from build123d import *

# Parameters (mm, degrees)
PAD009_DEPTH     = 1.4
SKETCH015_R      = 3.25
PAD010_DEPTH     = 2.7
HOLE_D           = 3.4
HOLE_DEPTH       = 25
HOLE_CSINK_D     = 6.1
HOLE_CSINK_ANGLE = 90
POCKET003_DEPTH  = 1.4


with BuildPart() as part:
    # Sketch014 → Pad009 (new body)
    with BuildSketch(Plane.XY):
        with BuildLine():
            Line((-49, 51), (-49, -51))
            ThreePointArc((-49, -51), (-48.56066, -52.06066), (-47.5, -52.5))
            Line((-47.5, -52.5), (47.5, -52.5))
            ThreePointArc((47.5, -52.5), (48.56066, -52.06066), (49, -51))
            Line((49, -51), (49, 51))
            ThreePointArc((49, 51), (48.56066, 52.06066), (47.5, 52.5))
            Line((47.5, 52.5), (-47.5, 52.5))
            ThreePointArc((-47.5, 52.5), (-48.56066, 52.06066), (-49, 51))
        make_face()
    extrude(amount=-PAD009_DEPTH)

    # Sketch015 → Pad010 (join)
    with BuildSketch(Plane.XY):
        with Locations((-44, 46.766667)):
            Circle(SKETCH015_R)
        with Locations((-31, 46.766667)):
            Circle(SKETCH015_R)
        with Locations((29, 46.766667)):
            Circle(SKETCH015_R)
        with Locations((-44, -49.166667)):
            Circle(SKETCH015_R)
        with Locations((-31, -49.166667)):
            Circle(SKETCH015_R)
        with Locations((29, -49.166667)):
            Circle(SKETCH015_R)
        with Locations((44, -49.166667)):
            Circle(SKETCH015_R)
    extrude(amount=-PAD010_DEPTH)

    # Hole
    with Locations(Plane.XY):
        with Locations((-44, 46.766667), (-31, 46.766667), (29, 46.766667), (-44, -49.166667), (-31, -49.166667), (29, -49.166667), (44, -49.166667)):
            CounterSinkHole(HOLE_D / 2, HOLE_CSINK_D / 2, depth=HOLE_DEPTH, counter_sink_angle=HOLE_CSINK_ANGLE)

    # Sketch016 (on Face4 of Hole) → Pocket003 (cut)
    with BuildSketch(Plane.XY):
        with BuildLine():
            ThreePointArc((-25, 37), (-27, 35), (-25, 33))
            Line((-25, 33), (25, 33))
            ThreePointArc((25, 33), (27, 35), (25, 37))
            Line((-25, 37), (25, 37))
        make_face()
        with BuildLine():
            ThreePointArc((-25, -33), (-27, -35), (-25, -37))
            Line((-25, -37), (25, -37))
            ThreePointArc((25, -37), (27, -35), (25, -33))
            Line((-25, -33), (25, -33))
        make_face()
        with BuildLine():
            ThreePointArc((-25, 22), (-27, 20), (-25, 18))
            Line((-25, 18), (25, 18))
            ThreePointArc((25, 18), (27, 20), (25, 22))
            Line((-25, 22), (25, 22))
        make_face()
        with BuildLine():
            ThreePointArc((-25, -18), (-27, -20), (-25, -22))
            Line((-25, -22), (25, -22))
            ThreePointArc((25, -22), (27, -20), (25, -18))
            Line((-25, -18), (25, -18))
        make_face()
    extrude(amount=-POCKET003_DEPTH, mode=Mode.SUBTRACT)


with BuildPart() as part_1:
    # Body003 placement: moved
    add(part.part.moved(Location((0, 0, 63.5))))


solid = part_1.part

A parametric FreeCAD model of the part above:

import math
import FreeCAD as App
import Part
import Sketcher

doc = App.newDocument("Part")
body = doc.addObject("PartDesign::Body", "Body")

# Sketch on XY plane
sketch1 = body.newObject("Sketcher::SketchObject", "Sketch")
sketch1.AttachmentSupport = (doc.getObject("XY_Plane"), [""])
sketch1.MapMode = "FlatFace"
sketch1.addGeometry(Part.LineSegment(App.Vector(-49, 51, 0), App.Vector(-49, -51, 0)), False)
sketch1.addGeometry(Part.ArcOfCircle(Part.Circle(App.Vector(-47.5, -51, 0), App.Vector(0, 0, 1), 1.5), math.radians(-180), math.radians(-90)), False)
sketch1.addGeometry(Part.LineSegment(App.Vector(-47.5, -52.5, 0), App.Vector(47.5, -52.5, 0)), False)
sketch1.addGeometry(Part.ArcOfCircle(Part.Circle(App.Vector(47.5, -51, 0), App.Vector(0, 0, 1), 1.5), math.radians(-90), math.radians(0)), False)
sketch1.addGeometry(Part.LineSegment(App.Vector(49, -51, 0), App.Vector(49, 51, 0)), False)
sketch1.addGeometry(Part.ArcOfCircle(Part.Circle(App.Vector(47.5, 51, 0), App.Vector(0, 0, 1), 1.5), math.radians(0), math.radians(90)), False)
sketch1.addGeometry(Part.LineSegment(App.Vector(47.5, 52.5, 0), App.Vector(-47.5, 52.5, 0)), False)
sketch1.addGeometry(Part.ArcOfCircle(Part.Circle(App.Vector(-47.5, 51, 0), App.Vector(0, 0, 1), 1.5), math.radians(90), math.radians(180)), False)
sketch1.addConstraint(Sketcher.Constraint("Tangent", 0, 2, 1, 1))
sketch1.addConstraint(Sketcher.Constraint("Tangent", 1, 2, 2, 1))
sketch1.addConstraint(Sketcher.Constraint("Tangent", 2, 2, 3, 1))
sketch1.addConstraint(Sketcher.Constraint("Tangent", 3, 2, 4, 1))
sketch1.addConstraint(Sketcher.Constraint("Tangent", 4, 2, 5, 1))
sketch1.addConstraint(Sketcher.Constraint("Tangent", 5, 2, 6, 1))
sketch1.addConstraint(Sketcher.Constraint("Tangent", 6, 2, 7, 1))
sketch1.addConstraint(Sketcher.Constraint("Tangent", 7, 2, 0, 1))
sketch1.addConstraint(Sketcher.Constraint("Vertical", 0))
sketch1.addConstraint(Sketcher.Constraint("Horizontal", 2))
sketch1.addConstraint(Sketcher.Constraint("Vertical", 4))
sketch1.addConstraint(Sketcher.Constraint("Horizontal", 6))
sketch1.addConstraint(Sketcher.Constraint("Equal", 1, 3))
sketch1.addConstraint(Sketcher.Constraint("Equal", 3, 5))
sketch1.addConstraint(Sketcher.Constraint("Equal", 5, 7))
sketch1.addConstraint(Sketcher.Constraint("Symmetric", 1, 3, 5, 3, -1, 1))
sketch1.addConstraint(Sketcher.Constraint("Radius", 1, 1.500001))
sketch1.addConstraint(Sketcher.Constraint("DistanceX", 2, 1, 2, 2, 95.0))
sketch1.addConstraint(Sketcher.Constraint("DistanceY", 0, 2, 0, 1, 102.0))
pad1 = body.newObject("PartDesign::Pad", "Pad")
pad1.Profile = sketch1
pad1.Length = 1.4
pad1.Reversed = True

# Sketch on XY plane
sketch2 = body.newObject("Sketcher::SketchObject", "Sketch001")
sketch2.AttachmentSupport = (doc.getObject("XY_Plane"), [""])
sketch2.MapMode = "FlatFace"
sketch2.addGeometry(Part.Circle(App.Vector(-44, 46.8, 0), App.Vector(0, 0, 1), 3.2), False)
sketch2.addGeometry(Part.Circle(App.Vector(-31, 46.8, 0), App.Vector(0, 0, 1), 3.2), False)
sketch2.addGeometry(Part.Circle(App.Vector(29, 46.8, 0), App.Vector(0, 0, 1), 3.2), False)
sketch2.addGeometry(Part.Circle(App.Vector(-44, -49.2, 0), App.Vector(0, 0, 1), 3.2), False)
sketch2.addGeometry(Part.Circle(App.Vector(-31, -49.2, 0), App.Vector(0, 0, 1), 3.2), False)
sketch2.addGeometry(Part.Circle(App.Vector(29, -49.2, 0), App.Vector(0, 0, 1), 3.2), False)
sketch2.addGeometry(Part.Circle(App.Vector(44, -49.2, 0), App.Vector(0, 0, 1), 3.2), False)
sketch2.addConstraint(Sketcher.Constraint("Equal", 0, 1))
sketch2.addConstraint(Sketcher.Constraint("Equal", 1, 2))
sketch2.addConstraint(Sketcher.Constraint("Equal", 2, 3))
sketch2.addConstraint(Sketcher.Constraint("Equal", 3, 4))
sketch2.addConstraint(Sketcher.Constraint("Equal", 4, 5))
sketch2.addConstraint(Sketcher.Constraint("Equal", 5, 6))
sketch2.addConstraint(Sketcher.Constraint("Symmetric", 3, 3, 6, 3, -2))
sketch2.addConstraint(Sketcher.Constraint("Horizontal", 0, 3, 1, 3))
sketch2.addConstraint(Sketcher.Constraint("Horizontal", 1, 3, 2, 3))
sketch2.addConstraint(Sketcher.Constraint("Horizontal", 3, 3, 4, 3))
sketch2.addConstraint(Sketcher.Constraint("Horizontal", 4, 3, 5, 3))
sketch2.addConstraint(Sketcher.Constraint("Vertical", 0, 3, 3, 3))
sketch2.addConstraint(Sketcher.Constraint("Vertical", 1, 3, 4, 3))
sketch2.addConstraint(Sketcher.Constraint("Vertical", 2, 3, 5, 3))
sketch2.addConstraint(Sketcher.Constraint("Diameter", 0, 6.5))
sketch2.addConstraint(Sketcher.Constraint("DistanceX", 0, 3, -1, 1, 44.0))
sketch2.addConstraint(Sketcher.Constraint("DistanceX", 1, 3, -1, 1, 31.0))
sketch2.addConstraint(Sketcher.Constraint("DistanceX", -1, 1, 2, 3, 29.0))
sketch2.addConstraint(Sketcher.Constraint("DistanceY", -1, 1, 0, 3, 46.766667))
sketch2.addConstraint(Sketcher.Constraint("DistanceY", 3, 3, -1, 1, 49.166667))
pad2 = body.newObject("PartDesign::Pad", "Pad001")
pad2.Profile = sketch2
pad2.Length = 2.7
pad2.Reversed = True

# Sketch on XY plane
sketch3 = body.newObject("Sketcher::SketchObject", "Sketch002")
sketch3.AttachmentSupport = (doc.getObject("XY_Plane"), [""])
sketch3.MapMode = "FlatFace"
sketch3.addGeometry(Part.Circle(App.Vector(-44, 46.8, 0), App.Vector(0, 0, 1), 1.7), False)
sketch3.addGeometry(Part.Circle(App.Vector(-31, 46.8, 0), App.Vector(0, 0, 1), 1.7), False)
sketch3.addGeometry(Part.Circle(App.Vector(29, 46.8, 0), App.Vector(0, 0, 1), 1.7), False)
sketch3.addGeometry(Part.Circle(App.Vector(-44, -49.2, 0), App.Vector(0, 0, 1), 1.7), False)
sketch3.addGeometry(Part.Circle(App.Vector(-31, -49.2, 0), App.Vector(0, 0, 1), 1.7), False)
sketch3.addGeometry(Part.Circle(App.Vector(29, -49.2, 0), App.Vector(0, 0, 1), 1.7), False)
sketch3.addGeometry(Part.Circle(App.Vector(44, -49.2, 0), App.Vector(0, 0, 1), 1.7), False)
sketch3.addConstraint(Sketcher.Constraint("Equal", 0, 1))
sketch3.addConstraint(Sketcher.Constraint("Equal", 1, 2))
sketch3.addConstraint(Sketcher.Constraint("Equal", 2, 3))
sketch3.addConstraint(Sketcher.Constraint("Equal", 3, 4))
sketch3.addConstraint(Sketcher.Constraint("Equal", 4, 5))
sketch3.addConstraint(Sketcher.Constraint("Equal", 5, 6))
sketch3.addConstraint(Sketcher.Constraint("Symmetric", 3, 3, 6, 3, -2))
sketch3.addConstraint(Sketcher.Constraint("Horizontal", 0, 3, 1, 3))
sketch3.addConstraint(Sketcher.Constraint("Horizontal", 1, 3, 2, 3))
sketch3.addConstraint(Sketcher.Constraint("Horizontal", 3, 3, 4, 3))
sketch3.addConstraint(Sketcher.Constraint("Horizontal", 4, 3, 5, 3))
sketch3.addConstraint(Sketcher.Constraint("Vertical", 0, 3, 3, 3))
sketch3.addConstraint(Sketcher.Constraint("Vertical", 1, 3, 4, 3))
sketch3.addConstraint(Sketcher.Constraint("Vertical", 2, 3, 5, 3))
sketch3.addConstraint(Sketcher.Constraint("Diameter", 0, 3.4))
sketch3.addConstraint(Sketcher.Constraint("DistanceX", 0, 3, -1, 1, 44.0))
sketch3.addConstraint(Sketcher.Constraint("DistanceX", 1, 3, -1, 1, 31.0))
sketch3.addConstraint(Sketcher.Constraint("DistanceX", -1, 1, 2, 3, 29.0))
sketch3.addConstraint(Sketcher.Constraint("DistanceY", -1, 1, 0, 3, 46.766667))
sketch3.addConstraint(Sketcher.Constraint("DistanceY", 3, 3, -1, 1, 49.166667))
doc.recompute()
hole = body.newObject("PartDesign::Hole", "Hole")
hole.Profile = sketch3
hole.ThreadType = "None"
hole.Diameter = 3.4
hole.DepthType = "Dimension"
hole.Depth = 25
hole.DrillPoint = "Flat"
hole.HoleCutType = "Countersink"
hole.HoleCutDiameter = 6.1
hole.HoleCutCountersinkAngle = 90

# Sketch on XY plane
sketch4 = body.newObject("Sketcher::SketchObject", "Sketch003")
sketch4.AttachmentSupport = (doc.getObject("XY_Plane"), [""])
sketch4.MapMode = "FlatFace"
sketch4.addGeometry(Part.ArcOfCircle(Part.Circle(App.Vector(-25, 35, 0), App.Vector(0, 0, 1), 2), math.radians(90), math.radians(270)), False)
sketch4.addGeometry(Part.LineSegment(App.Vector(-25, 33, 0), App.Vector(25, 33, 0)), False)
sketch4.addGeometry(Part.ArcOfCircle(Part.Circle(App.Vector(25, 35, 0), App.Vector(0, 0, 1), 2), math.radians(-90), math.radians(90)), False)
sketch4.addGeometry(Part.LineSegment(App.Vector(25, 37, 0), App.Vector(-25, 37, 0)), False)
sketch4.addGeometry(Part.ArcOfCircle(Part.Circle(App.Vector(-25, -35, 0), App.Vector(0, 0, 1), 2), math.radians(90), math.radians(270)), False)
sketch4.addGeometry(Part.LineSegment(App.Vector(-25, -37, 0), App.Vector(25, -37, 0)), False)
sketch4.addGeometry(Part.ArcOfCircle(Part.Circle(App.Vector(25, -35, 0), App.Vector(0, 0, 1), 2), math.radians(-90), math.radians(90)), False)
sketch4.addGeometry(Part.LineSegment(App.Vector(25, -33, 0), App.Vector(-25, -33, 0)), False)
sketch4.addGeometry(Part.ArcOfCircle(Part.Circle(App.Vector(-25, 20, 0), App.Vector(0, 0, 1), 2), math.radians(90), math.radians(270)), False)
sketch4.addGeometry(Part.LineSegment(App.Vector(-25, 18, 0), App.Vector(25, 18, 0)), False)
sketch4.addGeometry(Part.ArcOfCircle(Part.Circle(App.Vector(25, 20, 0), App.Vector(0, 0, 1), 2), math.radians(-90), math.radians(90)), False)
sketch4.addGeometry(Part.LineSegment(App.Vector(25, 22, 0), App.Vector(-25, 22, 0)), False)
sketch4.addGeometry(Part.ArcOfCircle(Part.Circle(App.Vector(-25, -20, 0), App.Vector(0, 0, 1), 2), math.radians(90), math.radians(270)), False)
sketch4.addGeometry(Part.LineSegment(App.Vector(-25, -22, 0), App.Vector(25, -22, 0)), False)
sketch4.addGeometry(Part.ArcOfCircle(Part.Circle(App.Vector(25, -20, 0), App.Vector(0, 0, 1), 2), math.radians(-90), math.radians(90)), False)
sketch4.addGeometry(Part.LineSegment(App.Vector(25, -18, 0), App.Vector(-25, -18, 0)), False)
sketch4.addConstraint(Sketcher.Constraint("Tangent", 0, 2, 1, 1))
sketch4.addConstraint(Sketcher.Constraint("Tangent", 1, 2, 2, 1))
sketch4.addConstraint(Sketcher.Constraint("Tangent", 2, 2, 3, 1))
sketch4.addConstraint(Sketcher.Constraint("Tangent", 3, 2, 0, 1))
sketch4.addConstraint(Sketcher.Constraint("Tangent", 4, 2, 5, 1))
sketch4.addConstraint(Sketcher.Constraint("Tangent", 5, 2, 6, 1))
sketch4.addConstraint(Sketcher.Constraint("Tangent", 6, 2, 7, 1))
sketch4.addConstraint(Sketcher.Constraint("Tangent", 7, 2, 4, 1))
sketch4.addConstraint(Sketcher.Constraint("Tangent", 8, 2, 9, 1))
sketch4.addConstraint(Sketcher.Constraint("Tangent", 9, 2, 10, 1))
sketch4.addConstraint(Sketcher.Constraint("Tangent", 10, 2, 11, 1))
sketch4.addConstraint(Sketcher.Constraint("Tangent", 11, 2, 8, 1))
sketch4.addConstraint(Sketcher.Constraint("Tangent", 12, 2, 13, 1))
sketch4.addConstraint(Sketcher.Constraint("Tangent", 13, 2, 14, 1))
sketch4.addConstraint(Sketcher.Constraint("Tangent", 14, 2, 15, 1))
sketch4.addConstraint(Sketcher.Constraint("Tangent", 15, 2, 12, 1))
sketch4.addConstraint(Sketcher.Constraint("Horizontal", 1))
sketch4.addConstraint(Sketcher.Constraint("Horizontal", 3))
sketch4.addConstraint(Sketcher.Constraint("Horizontal", 5))
sketch4.addConstraint(Sketcher.Constraint("Horizontal", 7))
sketch4.addConstraint(Sketcher.Constraint("Horizontal", 9))
sketch4.addConstraint(Sketcher.Constraint("Horizontal", 11))
sketch4.addConstraint(Sketcher.Constraint("Horizontal", 13))
sketch4.addConstraint(Sketcher.Constraint("Horizontal", 15))
sketch4.addConstraint(Sketcher.Constraint("Equal", 2, 4))
sketch4.addConstraint(Sketcher.Constraint("Equal", 6, 8))
sketch4.addConstraint(Sketcher.Constraint("Equal", 10, 12))
sketch4.addConstraint(Sketcher.Constraint("Symmetric", 2, 3, 4, 3, -1, 1))
sketch4.addConstraint(Sketcher.Constraint("Symmetric", 10, 3, 12, 3, -1, 1))
sketch4.addConstraint(Sketcher.Constraint("Vertical", 0, 3, 4, 3))
sketch4.addConstraint(Sketcher.Constraint("Vertical", 2, 3, 6, 3))
sketch4.addConstraint(Sketcher.Constraint("Vertical", 4, 3, 8, 3))
sketch4.addConstraint(Sketcher.Constraint("Vertical", 6, 3, 10, 3))
sketch4.addConstraint(Sketcher.Constraint("Vertical", 10, 3, 14, 3))
sketch4.addConstraint(Sketcher.Constraint("Radius", 0, 2.0))
sketch4.addConstraint(Sketcher.Constraint("DistanceX", 1, 1, 1, 2, 50.0))
sketch4.addConstraint(Sketcher.Constraint("DistanceY", -1, 1, 0, 3, 35.0))
sketch4.addConstraint(Sketcher.Constraint("DistanceY", -1, 1, 8, 3, 20.0))
pocket1 = body.newObject("PartDesign::Pocket", "Pocket")
pocket1.Profile = sketch4
pocket1.Length = 1.4
body2 = doc.addObject("PartDesign::Body", "Body001")
doc.recompute()

body.Placement = App.Placement(App.Vector(0, 0, 63.5), App.Rotation(App.Vector(0, 0, 1), 0))
boolean = body2.newObject("PartDesign::Boolean", "Boolean")
boolean.Type = "Fuse"
boolean.addObjects([body])

doc.recompute()
